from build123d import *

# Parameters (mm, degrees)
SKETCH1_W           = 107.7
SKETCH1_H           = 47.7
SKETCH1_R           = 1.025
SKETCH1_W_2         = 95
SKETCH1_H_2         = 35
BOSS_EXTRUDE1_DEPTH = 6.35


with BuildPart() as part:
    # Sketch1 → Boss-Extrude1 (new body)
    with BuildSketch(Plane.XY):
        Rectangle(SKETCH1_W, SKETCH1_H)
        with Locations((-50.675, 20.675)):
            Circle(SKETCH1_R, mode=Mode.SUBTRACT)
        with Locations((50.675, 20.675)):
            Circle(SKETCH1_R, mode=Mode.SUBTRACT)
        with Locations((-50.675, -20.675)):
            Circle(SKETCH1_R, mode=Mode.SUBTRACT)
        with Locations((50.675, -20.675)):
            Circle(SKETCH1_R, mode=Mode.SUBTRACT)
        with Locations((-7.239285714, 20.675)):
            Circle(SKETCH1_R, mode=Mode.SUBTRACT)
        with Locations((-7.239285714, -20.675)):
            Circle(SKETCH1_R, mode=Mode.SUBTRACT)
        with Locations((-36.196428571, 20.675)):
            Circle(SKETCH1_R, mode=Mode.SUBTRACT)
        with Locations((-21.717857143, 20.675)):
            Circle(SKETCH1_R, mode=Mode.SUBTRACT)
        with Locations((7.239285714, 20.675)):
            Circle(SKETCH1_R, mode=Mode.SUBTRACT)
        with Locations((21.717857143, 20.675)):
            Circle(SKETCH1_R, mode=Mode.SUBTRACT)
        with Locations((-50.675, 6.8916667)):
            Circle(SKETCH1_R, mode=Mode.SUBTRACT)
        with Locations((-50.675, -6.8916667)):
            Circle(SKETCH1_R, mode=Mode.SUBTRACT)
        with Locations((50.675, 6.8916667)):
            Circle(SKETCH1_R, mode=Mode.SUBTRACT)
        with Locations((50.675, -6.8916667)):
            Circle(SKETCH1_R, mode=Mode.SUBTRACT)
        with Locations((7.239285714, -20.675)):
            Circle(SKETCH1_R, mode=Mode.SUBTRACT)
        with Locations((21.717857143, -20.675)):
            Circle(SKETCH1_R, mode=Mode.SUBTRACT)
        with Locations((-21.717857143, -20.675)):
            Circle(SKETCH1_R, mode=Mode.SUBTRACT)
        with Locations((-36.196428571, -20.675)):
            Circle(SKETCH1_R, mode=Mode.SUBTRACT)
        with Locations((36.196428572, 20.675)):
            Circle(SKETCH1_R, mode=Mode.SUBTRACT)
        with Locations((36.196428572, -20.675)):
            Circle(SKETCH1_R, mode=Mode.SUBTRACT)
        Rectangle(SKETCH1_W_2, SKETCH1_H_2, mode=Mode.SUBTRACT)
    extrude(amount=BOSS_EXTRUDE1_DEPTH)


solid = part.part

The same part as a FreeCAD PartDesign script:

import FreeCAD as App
import Part
import Sketcher
from FreeCAD import Vector
Q = App.Units.Quantity


def add_polygon(sketch, points):
    """Adds a closed chain of lines whose ends are joined by coincident constraints."""
    first, n = sketch.GeometryCount, len(points)
    for a, b in zip(points, points[1:] + points[:1]):
        sketch.addGeometry(Part.LineSegment(App.Vector(*a, 0), App.Vector(*b, 0)), False)
    for i in range(n):
        sketch.addConstraint(Sketcher.Constraint("Coincident", first + i, 2, first + (i + 1) % n, 1))

doc = App.newDocument("Part")
params = doc.addObject("Spreadsheet::Sheet", "Params")
for row, (alias, value) in enumerate([
    ("sketch1_diameter", "2.05 mm"),
    ("sketch1_width", "95 mm"),
    ("sketch1_height", "35 mm"),
    ("sketch1_width2", "107.7 mm"),
    ("sketch1_height2", "47.7 mm"),
    ("pad1_length", "6.35 mm"),
], start=1):
    params.set(f"A{row}", alias)
    params.set(f"B{row}", "=" + value)
    params.setAlias(f"B{row}", alias)

body = doc.addObject("PartDesign::Body", "Body")

sketch1 = body.newObject("Sketcher::SketchObject", "Sketch")
sketch1.AttachmentSupport = (doc.getObject("XY_Plane"), [""])
sketch1.MapMode = "FlatFace"
add_polygon(sketch1, [(-53.85, 23.85), (-53.85, -23.85), (53.85, -23.85), (53.85, 23.85)])
sketch1.addGeometry(Part.Circle(Vector(-50.675, -20.675, 0), Vector(0, 0, 1), 1.025), False)
sketch1.addGeometry(Part.Circle(Vector(-36.196429, -20.675, 0), Vector(0, 0, 1), 1.025), False)
sketch1.addGeometry(Part.Circle(Vector(-21.717857, -20.675, 0), Vector(0, 0, 1), 1.025), False)
sketch1.addGeometry(Part.Circle(Vector(-7.239286, -20.675, 0), Vector(0, 0, 1), 1.025), False)
sketch1.addGeometry(Part.Circle(Vector(-50.675, -6.891667, 0), Vector(0, 0, 1), 1.025), False)
sketch1.addGeometry(Part.Circle(Vector(7.239286, -20.675, 0), Vector(0, 0, 1), 1.025), False)
sketch1.addGeometry(Part.Circle(Vector(21.717857, -20.675, 0), Vector(0, 0, 1), 1.025), False)
sketch1.addGeometry(Part.Circle(Vector(36.196429, -20.675, 0), Vector(0, 0, 1), 1.025), False)
sketch1.addGeometry(Part.Circle(Vector(50.675, -20.675, 0), Vector(0, 0, 1), 1.025), False)
sketch1.addGeometry(Part.Circle(Vector(50.675, -6.891667, 0), Vector(0, 0, 1), 1.025), False)
sketch1.addGeometry(Part.Circle(Vector(-50.675, 6.891667, 0), Vector(0, 0, 1), 1.025), False)
sketch1.addGeometry(Part.Circle(Vector(-50.675, 20.675, 0), Vector(0, 0, 1), 1.025), False)
sketch1.addGeometry(Part.Circle(Vector(-36.196429, 20.675, 0), Vector(0, 0, 1), 1.025), False)
sketch1.addGeometry(Part.Circle(Vector(-21.717857, 20.675, 0), Vector(0, 0, 1), 1.025), False)
sketch1.addGeometry(Part.Circle(Vector(-7.239286, 20.675, 0), Vector(0, 0, 1), 1.025), False)
add_polygon(sketch1, [(47.5, -17.5), (-47.5, -17.5), (-47.5, 17.5), (47.5, 17.5)])
sketch1.addGeometry(Part.Circle(Vector(50.675, 6.891667, 0), Vector(0, 0, 1), 1.025), False)
sketch1.addGeometry(Part.Circle(Vector(7.239286, 20.675, 0), Vector(0, 0, 1), 1.025), False)
sketch1.addGeometry(Part.Circle(Vector(21.717857, 20.675, 0), Vector(0, 0, 1), 1.025), False)
sketch1.addGeometry(Part.Circle(Vector(36.196429, 20.675, 0), Vector(0, 0, 1), 1.025), False)
sketch1.addGeometry(Part.Circle(Vector(50.675, 20.675, 0), Vector(0, 0, 1), 1.025), False)
sketch1.addConstraint([
    Sketcher.Constraint("Vertical", 0),
    Sketcher.Constraint("Horizontal", 1),
    Sketcher.Constraint("Vertical", 2),
    Sketcher.Constraint("Horizontal", 3),
    Sketcher.Constraint("Horizontal", 19),
    Sketcher.Constraint("Vertical", 20),
    Sketcher.Constraint("Horizontal", 21),
    Sketcher.Constraint("Vertical", 22),
    Sketcher.Constraint("Equal", 4, 5),
    Sketcher.Constraint("Equal", 5, 6),
    Sketcher.Constraint("Equal", 6, 7),
    Sketcher.Constraint("Equal", 7, 8),
    Sketcher.Constraint("Equal", 8, 9),
    Sketcher.Constraint("Equal", 9, 10),
    Sketcher.Constraint("Equal", 10, 11),
    Sketcher.Constraint("Equal", 11, 12),
    Sketcher.Constraint("Equal", 12, 13),
    Sketcher.Constraint("Equal", 13, 14),
    Sketcher.Constraint("Equal", 14, 15),
    Sketcher.Constraint("Equal", 15, 16),
    Sketcher.Constraint("Equal", 16, 17),
    Sketcher.Constraint("Equal", 17, 18),
    Sketcher.Constraint("Equal", 18, 23),
    Sketcher.Constraint("Equal", 23, 24),
    Sketcher.Constraint("Equal", 24, 25),
    Sketcher.Constraint("Equal", 25, 26),
    Sketcher.Constraint("Equal", 26, 27),
    Sketcher.Constraint("Symmetric", 13, 3, 14, 3, -1, 1),
    Sketcher.Constraint("Symmetric", 12, 3, 15, 3, -1, 1),
    Sketcher.Constraint("Symmetric", 11, 3, 16, 3, -1, 1),
    Sketcher.Constraint("Symmetric", 10, 3, 17, 3, -1, 1),
    Sketcher.Constraint("Symmetric", 9, 3, 18, 3, -1, 1),
    Sketcher.Constraint("Symmetric", 8, 3, 23, 3, -1, 1),
    Sketcher.Constraint("Symmetric", 7, 3, 24, 3, -1, 1),
    Sketcher.Constraint("Symmetric", 6, 3, 25, 3, -1, 1),
    Sketcher.Constraint("Symmetric", 5, 3, 26, 3, -1, 1),
    Sketcher.Constraint("Symmetric", 4, 3, 27, 3, -1, 1),
    Sketcher.Constraint("Symmetric", 0, 2, 2, 2, -1, 1),
    Sketcher.Constraint("Symmetric", 19, 2, 21, 2, -1, 1),
    Sketcher.Constraint("Symmetric", 7, 3, 9, 3, -2),
    Sketcher.Constraint("Symmetric", 6, 3, 10, 3, -2),
    Sketcher.Constraint("Symmetric", 5, 3, 11, 3, -2),
    Sketcher.Constraint("Symmetric", 4, 3, 12, 3, -2),
    Sketcher.Constraint("Symmetric", 8, 3, 13, 3, -2),
    Sketcher.Constraint("Horizontal", 4, 3, 5, 3),
    Sketcher.Constraint("Horizontal", 5, 3, 6, 3),
    Sketcher.Constraint("Horizontal", 6, 3, 7, 3),
    Sketcher.Constraint("Vertical", 4, 3, 8, 3),
    Sketcher.Constraint("Diameter", 4, Q("2.05 mm")),
    Sketcher.Constraint("DistanceX", 19, 2, 19, 1, Q("95 mm")),
    Sketcher.Constraint("DistanceY", 20, 1, 20, 2, Q("35 mm")),
    Sketcher.Constraint("DistanceX", 1, 1, 1, 2, Q("107.7 mm")),
    Sketcher.Constraint("DistanceY", 0, 2, 0, 1, Q("47.7 mm")),
    Sketcher.Constraint("DistanceY", 4, 3, 15, 3, Q("41.35 mm")),
    Sketcher.Constraint("DistanceX", 4, 3, -1, 1, Q("50.675 mm")),
    Sketcher.Constraint("DistanceX", 5, 3, -1, 1, Q("36.196429 mm")),
    Sketcher.Constraint("DistanceX", 5, 3, 6, 3, Q("14.478571 mm")),
    Sketcher.Constraint("DistanceX", 6, 3, 7, 3, Q("14.478571 mm")),
    Sketcher.Constraint("DistanceY", 8, 3, -1, 1, Q("6.891667 mm")),
])
sketch1.setExpression("Constraints[56]", "Params.sketch1_diameter")
sketch1.setExpression("Constraints[57]", "Params.sketch1_width")
sketch1.setExpression("Constraints[58]", "Params.sketch1_height")
sketch1.setExpression("Constraints[59]", "Params.sketch1_width2")
sketch1.setExpression("Constraints[60]", "Params.sketch1_height2")
pad1 = body.newObject("PartDesign::Pad", "Pad")
pad1.Profile = sketch1
pad1.setExpression("Length", "Params.pad1_length")

doc.recompute()
